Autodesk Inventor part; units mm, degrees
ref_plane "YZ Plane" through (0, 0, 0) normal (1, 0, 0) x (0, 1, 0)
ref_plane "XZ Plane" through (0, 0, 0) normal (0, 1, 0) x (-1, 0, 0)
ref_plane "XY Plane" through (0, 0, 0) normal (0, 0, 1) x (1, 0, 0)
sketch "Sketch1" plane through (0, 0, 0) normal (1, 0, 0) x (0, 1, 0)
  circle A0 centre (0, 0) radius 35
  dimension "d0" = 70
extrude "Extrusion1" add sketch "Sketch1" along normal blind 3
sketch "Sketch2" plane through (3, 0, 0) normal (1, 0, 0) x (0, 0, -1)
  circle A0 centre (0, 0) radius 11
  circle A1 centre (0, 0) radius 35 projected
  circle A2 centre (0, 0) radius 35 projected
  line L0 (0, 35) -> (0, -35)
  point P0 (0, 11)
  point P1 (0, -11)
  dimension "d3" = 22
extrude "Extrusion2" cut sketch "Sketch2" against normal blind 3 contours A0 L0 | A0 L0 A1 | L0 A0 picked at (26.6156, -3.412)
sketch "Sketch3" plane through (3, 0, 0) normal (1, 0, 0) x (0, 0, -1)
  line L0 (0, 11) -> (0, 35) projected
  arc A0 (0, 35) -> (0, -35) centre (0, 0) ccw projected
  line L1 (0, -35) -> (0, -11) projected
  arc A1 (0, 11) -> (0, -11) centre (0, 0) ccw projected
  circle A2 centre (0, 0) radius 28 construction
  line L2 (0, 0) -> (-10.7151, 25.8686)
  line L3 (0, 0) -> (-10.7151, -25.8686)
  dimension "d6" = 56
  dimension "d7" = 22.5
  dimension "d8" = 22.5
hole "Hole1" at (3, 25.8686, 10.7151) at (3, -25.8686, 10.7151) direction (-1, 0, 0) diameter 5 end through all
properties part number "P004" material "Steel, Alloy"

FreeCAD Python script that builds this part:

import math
import FreeCAD as App
import Part
import Sketcher
Q = App.Units.Quantity

doc = App.newDocument("Part")
body = doc.addObject("PartDesign::Body", "Body")

sketch1 = body.newObject("Sketcher::SketchObject", "Sketch")
sketch1.AttachmentSupport = (doc.getObject("YZ_Plane"), [""])
sketch1.MapMode = "FlatFace"
sketch1.addGeometry(Part.Circle(App.Vector(0, 0, 0), App.Vector(0, 0, 1), 35), False)
sketch1.addConstraint([
    Sketcher.Constraint("Coincident", 0, 3, -1, 1),
    Sketcher.Constraint("Diameter", 0, Q("70 mm")),
])
pad1 = body.newObject("PartDesign::Pad", "Pad")
pad1.Profile = sketch1
pad1.Length = 3

sketch2 = body.newObject("Sketcher::SketchObject", "Sketch001")
sketch2.AttachmentSupport = (doc.getObject("YZ_Plane"), [""])
sketch2.MapMode = "FlatFace"
sketch2.AttachmentOffset = App.Placement(App.Vector(0, 0, 3), App.Rotation())
sketch2.addGeometry([
    Part.LineSegment(App.Vector(-11, 0, 0), App.Vector(-35, 0, 0)),
    Part.ArcOfCircle(Part.Circle(App.Vector(0, 0, 0), App.Vector(0, 0, 1), 35), math.radians(180), math.radians(360)),
    Part.LineSegment(App.Vector(35, 0, 0), App.Vector(11, 0, 0)),
    Part.ArcOfCircle(Part.Circle(App.Vector(0, 0, 0), App.Vector(0, 0, 1), 11), math.radians(0), math.radians(180)),
], False)
sketch2.addConstraint([
    Sketcher.Constraint("Coincident", 0, 2, 1, 1),
    Sketcher.Constraint("Coincident", 1, 2, 2, 1),
    Sketcher.Constraint("Coincident", 2, 2, 3, 1),
    Sketcher.Constraint("Coincident", 3, 2, 0, 1),
    Sketcher.Constraint("Horizontal", 0),
    Sketcher.Constraint("Horizontal", 2),
    Sketcher.Constraint("Coincident", 1, 3, -1, 1),
    Sketcher.Constraint("Coincident", 3, 3, -1, 1),
    Sketcher.Constraint("PointOnObject", 0, 2, -1),
    Sketcher.Constraint("PointOnObject", 1, 2, -1),
    Sketcher.Constraint("Radius", 3, Q("11 mm")),
    Sketcher.Constraint("Radius", 1, Q("35 mm")),
])
pocket1 = body.newObject("PartDesign::Pocket", "Pocket")
pocket1.Profile = sketch2
pocket1.Length = 3

sketch3 = body.newObject("Sketcher::SketchObject", "Sketch002")
sketch3.AttachmentSupport = (doc.getObject("YZ_Plane"), [""])
sketch3.MapMode = "FlatFace"
sketch3.AttachmentOffset = App.Placement(App.Vector(0, 0, 3), App.Rotation())
sketch3.addGeometry([
    Part.Circle(App.Vector(25.9, 10.7, 0), App.Vector(0, 0, 1), 2.5),
    Part.Circle(App.Vector(-25.9, 10.7, 0), App.Vector(0, 0, 1), 2.5),
], False)
sketch3.addConstraint([
    Sketcher.Constraint("Equal", 0, 1),
    Sketcher.Constraint("Symmetric", 0, 3, 1, 3, -2),
    Sketcher.Constraint("Diameter", 0, Q("5 mm")),
    Sketcher.Constraint("DistanceY", -1, 1, 0, 3, Q("10.715 mm")),
    Sketcher.Constraint("DistanceX", -1, 1, 0, 3, Q("25.8686 mm")),
])
doc.recompute()
hole = body.newObject("PartDesign::Hole", "Hole")
hole.Profile = sketch3
hole.ThreadType = "None"
hole.Diameter = 5
hole.DepthType = "ThroughAll"

doc.recompute()
